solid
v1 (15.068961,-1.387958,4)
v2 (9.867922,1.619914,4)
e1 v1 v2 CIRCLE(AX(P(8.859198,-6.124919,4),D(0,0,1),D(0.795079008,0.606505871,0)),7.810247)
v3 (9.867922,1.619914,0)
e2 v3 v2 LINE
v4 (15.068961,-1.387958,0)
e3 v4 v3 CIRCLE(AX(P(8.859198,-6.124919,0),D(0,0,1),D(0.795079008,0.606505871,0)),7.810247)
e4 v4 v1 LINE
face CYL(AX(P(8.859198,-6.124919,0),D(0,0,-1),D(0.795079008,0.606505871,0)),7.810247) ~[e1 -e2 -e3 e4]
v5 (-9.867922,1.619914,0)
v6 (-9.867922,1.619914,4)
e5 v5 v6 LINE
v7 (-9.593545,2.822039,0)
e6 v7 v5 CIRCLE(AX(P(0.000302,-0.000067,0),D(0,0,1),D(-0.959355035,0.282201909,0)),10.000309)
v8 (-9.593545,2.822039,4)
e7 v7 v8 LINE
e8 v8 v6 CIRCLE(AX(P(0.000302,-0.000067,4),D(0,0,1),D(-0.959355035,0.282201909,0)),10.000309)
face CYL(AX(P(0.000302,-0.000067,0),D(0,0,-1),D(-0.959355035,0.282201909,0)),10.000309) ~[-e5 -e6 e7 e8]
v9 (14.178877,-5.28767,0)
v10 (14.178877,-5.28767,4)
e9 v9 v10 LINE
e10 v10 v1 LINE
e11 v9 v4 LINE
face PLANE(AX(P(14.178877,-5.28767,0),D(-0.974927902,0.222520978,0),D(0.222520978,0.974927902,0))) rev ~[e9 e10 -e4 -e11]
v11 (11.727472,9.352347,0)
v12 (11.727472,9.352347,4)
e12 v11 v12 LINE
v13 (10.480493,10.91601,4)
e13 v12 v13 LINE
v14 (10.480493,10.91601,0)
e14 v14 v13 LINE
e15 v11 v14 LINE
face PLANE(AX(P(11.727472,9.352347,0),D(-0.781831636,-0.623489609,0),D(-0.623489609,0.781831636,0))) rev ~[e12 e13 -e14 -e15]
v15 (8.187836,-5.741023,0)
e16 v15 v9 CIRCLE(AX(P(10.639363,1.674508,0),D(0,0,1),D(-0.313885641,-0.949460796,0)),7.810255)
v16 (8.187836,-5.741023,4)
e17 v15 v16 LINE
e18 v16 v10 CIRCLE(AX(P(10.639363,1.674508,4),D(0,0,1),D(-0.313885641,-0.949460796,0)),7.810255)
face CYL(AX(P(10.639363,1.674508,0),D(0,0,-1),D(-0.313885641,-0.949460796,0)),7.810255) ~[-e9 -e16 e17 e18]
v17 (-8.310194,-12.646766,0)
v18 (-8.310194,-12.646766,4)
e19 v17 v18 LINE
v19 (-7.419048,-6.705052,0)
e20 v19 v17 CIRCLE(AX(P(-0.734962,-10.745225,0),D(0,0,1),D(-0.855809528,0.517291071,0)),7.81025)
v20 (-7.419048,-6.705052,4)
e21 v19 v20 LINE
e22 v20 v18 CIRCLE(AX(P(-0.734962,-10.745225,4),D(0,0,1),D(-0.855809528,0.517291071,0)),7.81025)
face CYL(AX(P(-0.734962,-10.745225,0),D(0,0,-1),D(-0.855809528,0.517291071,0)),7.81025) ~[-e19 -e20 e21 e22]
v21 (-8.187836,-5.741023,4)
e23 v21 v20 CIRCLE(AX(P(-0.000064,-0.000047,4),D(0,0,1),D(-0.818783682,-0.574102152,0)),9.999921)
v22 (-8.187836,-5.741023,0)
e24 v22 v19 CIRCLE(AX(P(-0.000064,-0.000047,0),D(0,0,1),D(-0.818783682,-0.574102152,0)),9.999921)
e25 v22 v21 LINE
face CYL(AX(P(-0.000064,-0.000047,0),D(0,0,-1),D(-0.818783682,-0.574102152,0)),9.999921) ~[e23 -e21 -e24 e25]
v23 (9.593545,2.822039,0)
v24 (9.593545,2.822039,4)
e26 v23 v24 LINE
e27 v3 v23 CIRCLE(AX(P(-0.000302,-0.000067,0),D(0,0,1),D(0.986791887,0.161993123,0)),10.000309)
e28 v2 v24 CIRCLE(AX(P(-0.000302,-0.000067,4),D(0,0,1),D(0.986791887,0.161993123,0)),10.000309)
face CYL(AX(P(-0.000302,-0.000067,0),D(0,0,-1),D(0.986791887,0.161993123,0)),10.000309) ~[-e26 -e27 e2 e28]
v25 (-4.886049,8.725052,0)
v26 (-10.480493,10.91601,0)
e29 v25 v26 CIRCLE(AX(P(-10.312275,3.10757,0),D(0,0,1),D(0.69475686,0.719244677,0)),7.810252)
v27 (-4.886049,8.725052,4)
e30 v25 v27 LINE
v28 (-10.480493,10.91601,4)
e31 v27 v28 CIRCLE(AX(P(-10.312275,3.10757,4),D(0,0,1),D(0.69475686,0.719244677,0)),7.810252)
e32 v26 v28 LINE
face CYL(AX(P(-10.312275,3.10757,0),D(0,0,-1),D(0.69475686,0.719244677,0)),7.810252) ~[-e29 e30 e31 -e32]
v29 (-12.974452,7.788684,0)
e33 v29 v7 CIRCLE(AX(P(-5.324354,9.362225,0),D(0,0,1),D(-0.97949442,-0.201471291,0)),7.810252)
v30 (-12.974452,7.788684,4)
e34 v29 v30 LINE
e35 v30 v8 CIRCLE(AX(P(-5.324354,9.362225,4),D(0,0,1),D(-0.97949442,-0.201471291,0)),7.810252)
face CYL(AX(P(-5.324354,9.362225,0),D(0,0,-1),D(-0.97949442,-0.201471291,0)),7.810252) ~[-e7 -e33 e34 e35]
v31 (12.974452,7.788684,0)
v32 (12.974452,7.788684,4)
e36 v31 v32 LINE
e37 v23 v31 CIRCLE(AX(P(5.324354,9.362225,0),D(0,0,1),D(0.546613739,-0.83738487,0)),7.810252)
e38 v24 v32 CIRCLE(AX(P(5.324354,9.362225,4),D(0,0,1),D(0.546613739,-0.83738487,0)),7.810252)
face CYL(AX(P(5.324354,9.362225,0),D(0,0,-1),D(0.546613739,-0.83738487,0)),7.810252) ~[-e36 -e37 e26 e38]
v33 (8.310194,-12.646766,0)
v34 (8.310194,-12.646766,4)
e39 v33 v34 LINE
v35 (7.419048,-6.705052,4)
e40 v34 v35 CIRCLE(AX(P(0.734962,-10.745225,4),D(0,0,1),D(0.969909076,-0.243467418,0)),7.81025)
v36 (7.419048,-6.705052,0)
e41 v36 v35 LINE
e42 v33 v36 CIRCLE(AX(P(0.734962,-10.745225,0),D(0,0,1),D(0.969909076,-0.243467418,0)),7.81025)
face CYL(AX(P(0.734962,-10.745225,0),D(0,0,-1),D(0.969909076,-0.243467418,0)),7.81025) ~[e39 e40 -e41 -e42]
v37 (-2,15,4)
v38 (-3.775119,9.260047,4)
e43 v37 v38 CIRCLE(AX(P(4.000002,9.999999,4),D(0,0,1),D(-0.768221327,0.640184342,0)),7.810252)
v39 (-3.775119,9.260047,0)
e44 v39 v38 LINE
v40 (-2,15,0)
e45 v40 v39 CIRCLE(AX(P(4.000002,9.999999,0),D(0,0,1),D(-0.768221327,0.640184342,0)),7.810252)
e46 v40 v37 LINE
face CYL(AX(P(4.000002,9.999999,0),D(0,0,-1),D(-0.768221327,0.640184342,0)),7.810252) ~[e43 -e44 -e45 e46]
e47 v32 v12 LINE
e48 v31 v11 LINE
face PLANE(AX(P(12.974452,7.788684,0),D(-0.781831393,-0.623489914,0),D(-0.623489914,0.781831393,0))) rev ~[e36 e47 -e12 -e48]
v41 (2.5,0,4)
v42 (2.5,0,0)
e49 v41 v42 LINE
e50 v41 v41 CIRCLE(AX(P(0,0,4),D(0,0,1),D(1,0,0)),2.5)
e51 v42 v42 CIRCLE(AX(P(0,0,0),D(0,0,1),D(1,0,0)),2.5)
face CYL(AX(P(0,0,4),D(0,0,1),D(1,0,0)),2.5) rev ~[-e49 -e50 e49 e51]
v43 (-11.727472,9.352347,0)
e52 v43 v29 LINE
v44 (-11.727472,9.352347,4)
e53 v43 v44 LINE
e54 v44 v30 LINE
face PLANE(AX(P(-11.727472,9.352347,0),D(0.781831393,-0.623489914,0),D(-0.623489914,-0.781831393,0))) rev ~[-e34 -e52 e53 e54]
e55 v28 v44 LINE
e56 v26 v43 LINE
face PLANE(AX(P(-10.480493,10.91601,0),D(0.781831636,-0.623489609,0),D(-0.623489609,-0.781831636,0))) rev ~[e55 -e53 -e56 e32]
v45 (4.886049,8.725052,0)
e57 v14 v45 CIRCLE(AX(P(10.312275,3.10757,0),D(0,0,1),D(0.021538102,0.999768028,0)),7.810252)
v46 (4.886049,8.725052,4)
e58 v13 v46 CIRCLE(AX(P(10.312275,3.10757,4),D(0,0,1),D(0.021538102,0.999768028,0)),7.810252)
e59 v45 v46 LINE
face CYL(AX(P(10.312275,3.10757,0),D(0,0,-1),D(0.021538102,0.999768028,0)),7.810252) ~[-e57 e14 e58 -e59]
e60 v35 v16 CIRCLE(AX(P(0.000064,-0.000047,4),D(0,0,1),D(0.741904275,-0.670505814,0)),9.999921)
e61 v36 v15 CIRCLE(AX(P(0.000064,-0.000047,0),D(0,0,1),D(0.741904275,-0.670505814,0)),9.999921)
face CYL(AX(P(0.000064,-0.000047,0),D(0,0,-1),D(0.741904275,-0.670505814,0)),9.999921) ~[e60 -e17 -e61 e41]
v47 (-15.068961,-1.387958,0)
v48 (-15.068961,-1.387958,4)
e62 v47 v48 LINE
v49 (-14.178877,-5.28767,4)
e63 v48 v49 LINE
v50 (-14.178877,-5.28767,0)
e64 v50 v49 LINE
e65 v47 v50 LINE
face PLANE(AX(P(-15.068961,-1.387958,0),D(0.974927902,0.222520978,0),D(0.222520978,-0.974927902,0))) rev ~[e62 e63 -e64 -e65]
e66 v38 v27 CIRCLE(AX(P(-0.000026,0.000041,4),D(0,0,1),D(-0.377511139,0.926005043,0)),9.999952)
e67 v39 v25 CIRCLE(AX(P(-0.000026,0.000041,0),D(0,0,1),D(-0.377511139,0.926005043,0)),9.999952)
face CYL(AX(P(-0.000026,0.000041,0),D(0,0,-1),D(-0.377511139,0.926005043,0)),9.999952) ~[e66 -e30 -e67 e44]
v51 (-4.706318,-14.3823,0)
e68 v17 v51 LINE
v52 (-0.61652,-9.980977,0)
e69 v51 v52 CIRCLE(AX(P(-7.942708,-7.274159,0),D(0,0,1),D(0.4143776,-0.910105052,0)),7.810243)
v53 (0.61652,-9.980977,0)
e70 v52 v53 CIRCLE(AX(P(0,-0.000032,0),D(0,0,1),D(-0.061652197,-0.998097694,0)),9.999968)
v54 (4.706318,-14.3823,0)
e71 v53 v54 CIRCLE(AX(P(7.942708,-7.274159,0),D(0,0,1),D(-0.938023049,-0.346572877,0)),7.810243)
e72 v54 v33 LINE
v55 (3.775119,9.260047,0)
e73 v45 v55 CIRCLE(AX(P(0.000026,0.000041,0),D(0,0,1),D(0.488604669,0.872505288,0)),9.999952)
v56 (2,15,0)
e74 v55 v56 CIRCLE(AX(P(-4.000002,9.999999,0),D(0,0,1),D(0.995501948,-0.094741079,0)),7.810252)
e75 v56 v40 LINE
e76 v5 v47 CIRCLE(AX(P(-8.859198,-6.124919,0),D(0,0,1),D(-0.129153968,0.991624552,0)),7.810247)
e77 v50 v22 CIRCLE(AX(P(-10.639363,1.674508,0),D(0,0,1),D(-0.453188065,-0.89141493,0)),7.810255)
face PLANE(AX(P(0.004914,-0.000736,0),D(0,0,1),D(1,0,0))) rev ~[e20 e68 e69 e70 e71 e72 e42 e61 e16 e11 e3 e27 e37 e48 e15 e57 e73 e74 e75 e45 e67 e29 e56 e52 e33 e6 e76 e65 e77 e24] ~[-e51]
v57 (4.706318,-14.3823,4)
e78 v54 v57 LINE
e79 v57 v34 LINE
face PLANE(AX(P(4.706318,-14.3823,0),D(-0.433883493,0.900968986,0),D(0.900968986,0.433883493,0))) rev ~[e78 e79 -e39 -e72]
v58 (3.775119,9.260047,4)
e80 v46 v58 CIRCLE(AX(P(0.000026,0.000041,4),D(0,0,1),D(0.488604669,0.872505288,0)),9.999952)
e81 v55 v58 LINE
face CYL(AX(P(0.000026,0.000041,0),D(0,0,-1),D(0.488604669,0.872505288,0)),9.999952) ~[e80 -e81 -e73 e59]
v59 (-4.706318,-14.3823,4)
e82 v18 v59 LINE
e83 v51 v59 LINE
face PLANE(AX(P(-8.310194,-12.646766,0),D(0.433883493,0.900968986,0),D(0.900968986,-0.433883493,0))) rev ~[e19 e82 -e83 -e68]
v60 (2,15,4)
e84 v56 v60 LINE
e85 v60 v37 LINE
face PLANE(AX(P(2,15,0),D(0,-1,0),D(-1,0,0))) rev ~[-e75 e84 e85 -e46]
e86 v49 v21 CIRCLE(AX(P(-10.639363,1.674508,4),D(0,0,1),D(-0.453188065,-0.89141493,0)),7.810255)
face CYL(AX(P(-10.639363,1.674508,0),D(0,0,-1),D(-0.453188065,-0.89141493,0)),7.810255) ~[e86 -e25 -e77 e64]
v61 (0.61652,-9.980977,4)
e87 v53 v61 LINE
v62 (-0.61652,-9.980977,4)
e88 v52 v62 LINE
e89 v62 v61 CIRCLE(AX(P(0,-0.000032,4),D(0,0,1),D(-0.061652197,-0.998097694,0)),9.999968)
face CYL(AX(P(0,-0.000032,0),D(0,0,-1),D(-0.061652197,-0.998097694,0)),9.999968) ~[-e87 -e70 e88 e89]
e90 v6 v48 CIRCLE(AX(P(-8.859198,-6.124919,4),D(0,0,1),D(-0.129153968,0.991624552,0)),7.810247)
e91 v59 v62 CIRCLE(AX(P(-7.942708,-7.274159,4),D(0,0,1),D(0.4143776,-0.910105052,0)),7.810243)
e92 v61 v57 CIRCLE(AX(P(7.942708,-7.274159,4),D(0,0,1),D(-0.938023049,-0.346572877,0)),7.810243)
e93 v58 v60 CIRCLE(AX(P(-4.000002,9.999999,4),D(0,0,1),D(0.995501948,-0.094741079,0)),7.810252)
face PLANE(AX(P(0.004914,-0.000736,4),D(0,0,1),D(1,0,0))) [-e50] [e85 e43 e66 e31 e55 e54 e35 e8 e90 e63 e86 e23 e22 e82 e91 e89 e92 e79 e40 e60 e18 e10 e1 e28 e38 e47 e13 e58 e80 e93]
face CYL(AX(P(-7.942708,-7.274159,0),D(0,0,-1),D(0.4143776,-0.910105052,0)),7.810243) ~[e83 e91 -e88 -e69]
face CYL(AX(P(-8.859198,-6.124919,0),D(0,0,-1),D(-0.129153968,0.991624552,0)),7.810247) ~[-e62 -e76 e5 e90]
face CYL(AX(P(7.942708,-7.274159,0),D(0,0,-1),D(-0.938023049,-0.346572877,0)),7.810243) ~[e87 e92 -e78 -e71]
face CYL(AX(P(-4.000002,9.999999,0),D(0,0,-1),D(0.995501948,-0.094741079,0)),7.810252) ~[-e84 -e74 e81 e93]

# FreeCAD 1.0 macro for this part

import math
import FreeCAD as App
import Part
import Sketcher
from FreeCAD import Vector
Q = App.Units.Quantity

doc = App.newDocument("Part")
body = doc.addObject("PartDesign::Body", "Body")

# Sketch on XY plane
sketch1 = body.newObject("Sketcher::SketchObject", "Sketch")
sketch1.AttachmentSupport = (doc.getObject("XY_Plane"), [""])
sketch1.MapMode = "FlatFace"
sketch1.addGeometry(Part.ArcOfCircle(Part.Circle(Vector(-0.000302, -0.000067, 0), Vector(0, 0, 1), 10.000309), math.radians(9.322603), math.radians(16.391666)), False)
sketch1.addGeometry(Part.ArcOfCircle(Part.Circle(Vector(5.324354, 9.362225, 0), Vector(0, 0, 1), 7.810252), math.radians(-56.86499), math.radians(-11.623009)), False)
sketch1.addGeometry(Part.LineSegment(Vector(12.974452, 7.788684, 0), Vector(11.727472, 9.352347, 0)), False)
sketch1.addGeometry(Part.LineSegment(Vector(11.727472, 9.352347, 0), Vector(10.480493, 10.91601, 0)), False)
sketch1.addGeometry(Part.ArcOfCircle(Part.Circle(Vector(10.312275, 3.10757, 0), Vector(0, 0, 1), 7.810252), math.radians(88.765862), math.radians(134.007845)), False)
sketch1.addGeometry(Part.ArcOfCircle(Part.Circle(Vector(0.000026, 0.000041, 0), Vector(0, 0, 1), 9.999952), math.radians(60.751088), math.radians(67.820398)), False)
sketch1.addGeometry(Part.ArcOfCircle(Part.Circle(Vector(-4.000002, 9.999999, 0), Vector(0, 0, 1), 7.810252), math.radians(-5.436418), math.radians(39.805567)), False)
sketch1.addGeometry(Part.LineSegment(Vector(2, 15, 0), Vector(-2, 15, 0)), False)
sketch1.addGeometry(Part.ArcOfCircle(Part.Circle(Vector(4.000002, 9.999999, 0), Vector(0, 0, 1), 7.810252), math.radians(140.194433), math.radians(185.436418)), False)
sketch1.addGeometry(Part.ArcOfCircle(Part.Circle(Vector(-0.000026, 0.000041, 0), Vector(0, 0, 1), 9.999952), math.radians(112.179602), math.radians(119.248912)), False)
sketch1.addGeometry(Part.ArcOfCircle(Part.Circle(Vector(-10.312275, 3.10757, 0), Vector(0, 0, 1), 7.810252), math.radians(45.992155), math.radians(91.234138)), False)
sketch1.addGeometry(Part.LineSegment(Vector(-10.480493, 10.91601, 0), Vector(-11.727472, 9.352347, 0)), False)
sketch1.addGeometry(Part.LineSegment(Vector(-11.727472, 9.352347, 0), Vector(-12.974452, 7.788684, 0)), False)
sketch1.addGeometry(Part.ArcOfCircle(Part.Circle(Vector(-5.324354, 9.362225, 0), Vector(0, 0, 1), 7.810252), math.radians(-168.376991), math.radians(-123.13501)), False)
sketch1.addGeometry(Part.ArcOfCircle(Part.Circle(Vector(0.000302, -0.000067, 0), Vector(0, 0, 1), 10.000309), math.radians(163.608334), math.radians(170.677397)), False)
sketch1.addGeometry(Part.ArcOfCircle(Part.Circle(Vector(-8.859198, -6.124919, 0), Vector(0, 0, 1), 7.810247), math.radians(97.420706), math.radians(142.662719)), False)
sketch1.addGeometry(Part.LineSegment(Vector(-15.068961, -1.387958, 0), Vector(-14.178877, -5.28767, 0)), False)
sketch1.addGeometry(Part.ArcOfCircle(Part.Circle(Vector(-10.639363, 1.674508, 0), Vector(0, 0, 1), 7.810255), math.radians(-116.948412), math.radians(-71.706446)), False)
sketch1.addGeometry(Part.ArcOfCircle(Part.Circle(Vector(-0.000064, -0.000047, 0), Vector(0, 0, 1), 9.999921), math.radians(-144.96322), math.radians(-137.893884)), False)
sketch1.addGeometry(Part.ArcOfCircle(Part.Circle(Vector(-0.734962, -10.745225, 0), Vector(0, 0, 1), 7.81025), math.radians(148.849283), math.radians(194.091281)), False)
sketch1.addGeometry(Part.LineSegment(Vector(-8.310194, -12.646766, 0), Vector(-4.706318, -14.3823, 0)), False)
sketch1.addGeometry(Part.ArcOfCircle(Part.Circle(Vector(-7.942708, -7.274159, 0), Vector(0, 0, 1), 7.810243), math.radians(-65.519873), math.radians(-20.27784)), False)
sketch1.addGeometry(Part.ArcOfCircle(Part.Circle(Vector(0, -0.000032, 0), Vector(0, 0, 1), 9.999968), math.radians(-93.534652), math.radians(-86.465348)), False)
sketch1.addGeometry(Part.ArcOfCircle(Part.Circle(Vector(7.942708, -7.274159, 0), Vector(0, 0, 1), 7.810243), math.radians(-159.72216), math.radians(-114.480127)), False)
sketch1.addGeometry(Part.LineSegment(Vector(4.706318, -14.3823, 0), Vector(8.310194, -12.646766, 0)), False)
sketch1.addGeometry(Part.ArcOfCircle(Part.Circle(Vector(0.734962, -10.745225, 0), Vector(0, 0, 1), 7.81025), math.radians(-14.091281), math.radians(31.150717)), False)
sketch1.addGeometry(Part.ArcOfCircle(Part.Circle(Vector(0.000064, -0.000047, 0), Vector(0, 0, 1), 9.999921), math.radians(-42.106116), math.radians(-35.03678)), False)
sketch1.addGeometry(Part.ArcOfCircle(Part.Circle(Vector(10.639363, 1.674508, 0), Vector(0, 0, 1), 7.810255), math.radians(-108.293554), math.radians(-63.051588)), False)
sketch1.addGeometry(Part.LineSegment(Vector(14.178877, -5.28767, 0), Vector(15.068961, -1.387958, 0)), False)
sketch1.addGeometry(Part.ArcOfCircle(Part.Circle(Vector(8.859198, -6.124919, 0), Vector(0, 0, 1), 7.810247), math.radians(37.337281), math.radians(82.579294)), False)
sketch1.addConstraint(Sketcher.Constraint("Coincident", 0, 2, 1, 1))
sketch1.addConstraint(Sketcher.Constraint("Coincident", 1, 2, 2, 1))
sketch1.addConstraint(Sketcher.Constraint("Coincident", 2, 2, 3, 1))
sketch1.addConstraint(Sketcher.Constraint("Coincident", 3, 2, 4, 1))
sketch1.addConstraint(Sketcher.Constraint("Coincident", 4, 2, 5, 1))
sketch1.addConstraint(Sketcher.Constraint("Coincident", 5, 2, 6, 1))
sketch1.addConstraint(Sketcher.Constraint("Coincident", 6, 2, 7, 1))
sketch1.addConstraint(Sketcher.Constraint("Coincident", 7, 2, 8, 1))
sketch1.addConstraint(Sketcher.Constraint("Coincident", 8, 2, 9, 1))
sketch1.addConstraint(Sketcher.Constraint("Coincident", 9, 2, 10, 1))
sketch1.addConstraint(Sketcher.Constraint("Coincident", 10, 2, 11, 1))
sketch1.addConstraint(Sketcher.Constraint("Coincident", 11, 2, 12, 1))
sketch1.addConstraint(Sketcher.Constraint("Coincident", 12, 2, 13, 1))
sketch1.addConstraint(Sketcher.Constraint("Coincident", 13, 2, 14, 1))
sketch1.addConstraint(Sketcher.Constraint("Coincident", 14, 2, 15, 1))
sketch1.addConstraint(Sketcher.Constraint("Coincident", 15, 2, 16, 1))
sketch1.addConstraint(Sketcher.Constraint("Coincident", 16, 2, 17, 1))
sketch1.addConstraint(Sketcher.Constraint("Coincident", 17, 2, 18, 1))
sketch1.addConstraint(Sketcher.Constraint("Coincident", 18, 2, 19, 1))
sketch1.addConstraint(Sketcher.Constraint("Coincident", 19, 2, 20, 1))
sketch1.addConstraint(Sketcher.Constraint("Coincident", 20, 2, 21, 1))
sketch1.addConstraint(Sketcher.Constraint("Coincident", 21, 2, 22, 1))
sketch1.addConstraint(Sketcher.Constraint("Coincident", 22, 2, 23, 1))
sketch1.addConstraint(Sketcher.Constraint("Coincident", 23, 2, 24, 1))
sketch1.addConstraint(Sketcher.Constraint("Coincident", 24, 2, 25, 1))
sketch1.addConstraint(Sketcher.Constraint("Coincident", 25, 2, 26, 1))
sketch1.addConstraint(Sketcher.Constraint("Coincident", 26, 2, 27, 1))
sketch1.addConstraint(Sketcher.Constraint("Coincident", 27, 2, 28, 1))
sketch1.addConstraint(Sketcher.Constraint("Coincident", 28, 2, 29, 1))
sketch1.addConstraint(Sketcher.Constraint("Coincident", 29, 2, 0, 1))
sketch1.addConstraint(Sketcher.Constraint("Horizontal", 7))
sketch1.addConstraint(Sketcher.Constraint("Equal", 1, 4))
sketch1.addConstraint(Sketcher.Constraint("Equal", 4, 6))
sketch1.addConstraint(Sketcher.Constraint("Equal", 6, 8))
sketch1.addConstraint(Sketcher.Constraint("Equal", 5, 9))
sketch1.addConstraint(Sketcher.Constraint("Equal", 8, 10))
sketch1.addConstraint(Sketcher.Constraint("Equal", 10, 13))
sketch1.addConstraint(Sketcher.Constraint("Equal", 0, 14))
sketch1.addConstraint(Sketcher.Constraint("Equal", 13, 19))
sketch1.addConstraint(Sketcher.Constraint("Equal", 21, 23))
sketch1.addConstraint(Sketcher.Constraint("Equal", 19, 25))
sketch1.addConstraint(Sketcher.Constraint("Equal", 18, 26))
sketch1.addConstraint(Sketcher.Constraint("Equal", 17, 27))
sketch1.addConstraint(Sketcher.Constraint("Equal", 15, 29))
sketch1.addConstraint(Sketcher.Constraint("Symmetric", 6, 3, 8, 3, -2))
sketch1.addConstraint(Sketcher.Constraint("Symmetric", 5, 3, 9, 3, -2))
sketch1.addConstraint(Sketcher.Constraint("Symmetric", 4, 3, 10, 3, -2))
sketch1.addConstraint(Sketcher.Constraint("Symmetric", 1, 3, 13, 3, -2))
sketch1.addConstraint(Sketcher.Constraint("Symmetric", 0, 3, 14, 3, -2))
sketch1.addConstraint(Sketcher.Constraint("Symmetric", 21, 3, 23, 3, -2))
sketch1.addConstraint(Sketcher.Constraint("Symmetric", 19, 3, 25, 3, -2))
sketch1.addConstraint(Sketcher.Constraint("Symmetric", 18, 3, 26, 3, -2))
sketch1.addConstraint(Sketcher.Constraint("Symmetric", 17, 3, 27, 3, -2))
sketch1.addConstraint(Sketcher.Constraint("Symmetric", 15, 3, 29, 3, -2))
sketch1.addConstraint(Sketcher.Constraint("Symmetric", 2, 2, 11, 2, -2))
sketch1.addConstraint(Sketcher.Constraint("PointOnObject", 22, 3, -2))
sketch1.addConstraint(Sketcher.Constraint("Parallel", 2, 3))
sketch1.addConstraint(Sketcher.Constraint("Parallel", 11, 12))
sketch1.addConstraint(Sketcher.Constraint("Horizontal", 3, 2, 10, 2))
sketch1.addConstraint(Sketcher.Constraint("Horizontal", 20, 2, 23, 2))
sketch1.addConstraint(Sketcher.Constraint("Horizontal", 19, 2, 24, 2))
sketch1.addConstraint(Sketcher.Constraint("Horizontal", 16, 2, 27, 2))
sketch1.addConstraint(Sketcher.Constraint("Horizontal", 15, 2, 28, 2))
sketch1.addConstraint(Sketcher.Constraint("Equal", 2, 3))
sketch1.addConstraint(Sketcher.Constraint("Equal", 16, 20))
sketch1.addConstraint(Sketcher.Constraint("DistanceX", 7, 2, 7, 1, Q("4 mm")))
sketch1.addConstraint(Sketcher.Constraint("Distance", 2, Q("2 mm")))
sketch1.addConstraint(Sketcher.Constraint("Distance", 16, Q("4 mm")))
sketch1.addConstraint(Sketcher.Constraint("DistanceY", -1, 1, 6, 3, Q("9.999999 mm")))
sketch1.addConstraint(Sketcher.Constraint("DistanceY", -1, 1, 6, 2, Q("15 mm")))
sketch1.addConstraint(Sketcher.Constraint("Radius", 0, Q("10.000309 mm")))
sketch1.addConstraint(Sketcher.Constraint("Radius", 1, Q("7.810252 mm")))
sketch1.addConstraint(Sketcher.Constraint("Radius", 18, Q("9.999921 mm")))
sketch1.addConstraint(Sketcher.Constraint("Radius", 22, Q("9.999968 mm")))
sketch1.addConstraint(Sketcher.Constraint("Radius", 5, Q("9.999952 mm")))
sketch1.addConstraint(Sketcher.Constraint("Radius", 15, Q("7.810247 mm")))
sketch1.addConstraint(Sketcher.Constraint("Radius", 17, Q("7.810255 mm")))
sketch1.addConstraint(Sketcher.Constraint("Radius", 21, Q("7.810243 mm")))
sketch1.addConstraint(Sketcher.Constraint("DistanceX", 0, 3, -1, 1, Q("0.000302 mm")))
sketch1.addConstraint(Sketcher.Constraint("DistanceY", 20, 2, -1, 1, Q("14.3823 mm")))
sketch1.addConstraint(Sketcher.Constraint("DistanceX", 10, 3, 5, 3, Q("10.312301 mm")))
sketch1.addConstraint(Sketcher.Constraint("DistanceX", 15, 3, 14, 3, Q("8.859499 mm")))
sketch1.addConstraint(Sketcher.Constraint("DistanceY", 23, 3, 5, 3, Q("7.274199 mm")))
sketch1.addConstraint(Sketcher.Constraint("DistanceX", 15, 2, 17, 3, Q("4.429598 mm")))
sketch1.addConstraint(Sketcher.Constraint("DistanceX", 22, 2, 23, 2, Q("4.089798 mm")))
sketch1.addConstraint(Sketcher.Constraint("DistanceY", -1, 1, 4, 3, Q("3.10757 mm")))
sketch1.addConstraint(Sketcher.Constraint("DistanceY", 15, 3, -1, 1, Q("6.124919 mm")))
sketch1.addConstraint(Sketcher.Constraint("DistanceX", 19, 3, -1, 1, Q("0.734962 mm")))
sketch1.addConstraint(Sketcher.Constraint("DistanceY", 21, 3, -1, 1, Q("7.274159 mm")))
sketch1.addConstraint(Sketcher.Constraint("DistanceY", -1, 1, 0, 2, Q("2.822039 mm")))
sketch1.addConstraint(Sketcher.Constraint("DistanceY", -1, 1, 3, 2, Q("10.91601 mm")))
sketch1.addConstraint(Sketcher.Constraint("DistanceX", -1, 1, 4, 2, Q("4.886049 mm")))
sketch1.addConstraint(Sketcher.Constraint("DistanceX", 14, 2, -1, 1, Q("9.867922 mm")))
sketch1.addConstraint(Sketcher.Constraint("DistanceX", 15, 2, -1, 1, Q("15.068961 mm")))
sketch1.addConstraint(Sketcher.Constraint("DistanceY", 16, 2, -1, 1, Q("5.28767 mm")))
sketch1.addConstraint(Sketcher.Constraint("DistanceY", 18, 2, -1, 1, Q("6.705052 mm")))
sketch1.addConstraint(Sketcher.Constraint("DistanceX", 21, 2, -1, 1, Q("0.61652 mm")))
sketch1.addConstraint(Sketcher.Constraint("DistanceX", 1, 3, 4, 3, Q("4.987921 mm")))
sketch1.addConstraint(Sketcher.Constraint("DistanceY", 15, 3, 18, 3, Q("6.124872 mm")))
sketch1.addConstraint(Sketcher.Constraint("DistanceX", 15, 3, 17, 2, Q("0.671362 mm")))
pad1 = body.newObject("PartDesign::Pad", "Pad")
pad1.Profile = sketch1
pad1.Length = 4

# Sketch on XY plane
sketch2 = body.newObject("Sketcher::SketchObject", "Sketch001")
sketch2.AttachmentSupport = (doc.getObject("XY_Plane"), [""])
sketch2.MapMode = "FlatFace"
sketch2.AttachmentOffset = App.Placement(Vector(0, 0, 4), App.Rotation())
sketch2.addGeometry(Part.Circle(Vector(0, 0, 0), Vector(0, 0, 1), 2.5), False)
sketch2.addConstraint(Sketcher.Constraint("Coincident", 0, 3, -1, 1))
sketch2.addConstraint(Sketcher.Constraint("Diameter", 0, Q("5 mm")))
pocket1 = body.newObject("PartDesign::Pocket", "Pocket")
pocket1.Profile = sketch2
pocket1.Type = "ThroughAll"

doc.recompute()
